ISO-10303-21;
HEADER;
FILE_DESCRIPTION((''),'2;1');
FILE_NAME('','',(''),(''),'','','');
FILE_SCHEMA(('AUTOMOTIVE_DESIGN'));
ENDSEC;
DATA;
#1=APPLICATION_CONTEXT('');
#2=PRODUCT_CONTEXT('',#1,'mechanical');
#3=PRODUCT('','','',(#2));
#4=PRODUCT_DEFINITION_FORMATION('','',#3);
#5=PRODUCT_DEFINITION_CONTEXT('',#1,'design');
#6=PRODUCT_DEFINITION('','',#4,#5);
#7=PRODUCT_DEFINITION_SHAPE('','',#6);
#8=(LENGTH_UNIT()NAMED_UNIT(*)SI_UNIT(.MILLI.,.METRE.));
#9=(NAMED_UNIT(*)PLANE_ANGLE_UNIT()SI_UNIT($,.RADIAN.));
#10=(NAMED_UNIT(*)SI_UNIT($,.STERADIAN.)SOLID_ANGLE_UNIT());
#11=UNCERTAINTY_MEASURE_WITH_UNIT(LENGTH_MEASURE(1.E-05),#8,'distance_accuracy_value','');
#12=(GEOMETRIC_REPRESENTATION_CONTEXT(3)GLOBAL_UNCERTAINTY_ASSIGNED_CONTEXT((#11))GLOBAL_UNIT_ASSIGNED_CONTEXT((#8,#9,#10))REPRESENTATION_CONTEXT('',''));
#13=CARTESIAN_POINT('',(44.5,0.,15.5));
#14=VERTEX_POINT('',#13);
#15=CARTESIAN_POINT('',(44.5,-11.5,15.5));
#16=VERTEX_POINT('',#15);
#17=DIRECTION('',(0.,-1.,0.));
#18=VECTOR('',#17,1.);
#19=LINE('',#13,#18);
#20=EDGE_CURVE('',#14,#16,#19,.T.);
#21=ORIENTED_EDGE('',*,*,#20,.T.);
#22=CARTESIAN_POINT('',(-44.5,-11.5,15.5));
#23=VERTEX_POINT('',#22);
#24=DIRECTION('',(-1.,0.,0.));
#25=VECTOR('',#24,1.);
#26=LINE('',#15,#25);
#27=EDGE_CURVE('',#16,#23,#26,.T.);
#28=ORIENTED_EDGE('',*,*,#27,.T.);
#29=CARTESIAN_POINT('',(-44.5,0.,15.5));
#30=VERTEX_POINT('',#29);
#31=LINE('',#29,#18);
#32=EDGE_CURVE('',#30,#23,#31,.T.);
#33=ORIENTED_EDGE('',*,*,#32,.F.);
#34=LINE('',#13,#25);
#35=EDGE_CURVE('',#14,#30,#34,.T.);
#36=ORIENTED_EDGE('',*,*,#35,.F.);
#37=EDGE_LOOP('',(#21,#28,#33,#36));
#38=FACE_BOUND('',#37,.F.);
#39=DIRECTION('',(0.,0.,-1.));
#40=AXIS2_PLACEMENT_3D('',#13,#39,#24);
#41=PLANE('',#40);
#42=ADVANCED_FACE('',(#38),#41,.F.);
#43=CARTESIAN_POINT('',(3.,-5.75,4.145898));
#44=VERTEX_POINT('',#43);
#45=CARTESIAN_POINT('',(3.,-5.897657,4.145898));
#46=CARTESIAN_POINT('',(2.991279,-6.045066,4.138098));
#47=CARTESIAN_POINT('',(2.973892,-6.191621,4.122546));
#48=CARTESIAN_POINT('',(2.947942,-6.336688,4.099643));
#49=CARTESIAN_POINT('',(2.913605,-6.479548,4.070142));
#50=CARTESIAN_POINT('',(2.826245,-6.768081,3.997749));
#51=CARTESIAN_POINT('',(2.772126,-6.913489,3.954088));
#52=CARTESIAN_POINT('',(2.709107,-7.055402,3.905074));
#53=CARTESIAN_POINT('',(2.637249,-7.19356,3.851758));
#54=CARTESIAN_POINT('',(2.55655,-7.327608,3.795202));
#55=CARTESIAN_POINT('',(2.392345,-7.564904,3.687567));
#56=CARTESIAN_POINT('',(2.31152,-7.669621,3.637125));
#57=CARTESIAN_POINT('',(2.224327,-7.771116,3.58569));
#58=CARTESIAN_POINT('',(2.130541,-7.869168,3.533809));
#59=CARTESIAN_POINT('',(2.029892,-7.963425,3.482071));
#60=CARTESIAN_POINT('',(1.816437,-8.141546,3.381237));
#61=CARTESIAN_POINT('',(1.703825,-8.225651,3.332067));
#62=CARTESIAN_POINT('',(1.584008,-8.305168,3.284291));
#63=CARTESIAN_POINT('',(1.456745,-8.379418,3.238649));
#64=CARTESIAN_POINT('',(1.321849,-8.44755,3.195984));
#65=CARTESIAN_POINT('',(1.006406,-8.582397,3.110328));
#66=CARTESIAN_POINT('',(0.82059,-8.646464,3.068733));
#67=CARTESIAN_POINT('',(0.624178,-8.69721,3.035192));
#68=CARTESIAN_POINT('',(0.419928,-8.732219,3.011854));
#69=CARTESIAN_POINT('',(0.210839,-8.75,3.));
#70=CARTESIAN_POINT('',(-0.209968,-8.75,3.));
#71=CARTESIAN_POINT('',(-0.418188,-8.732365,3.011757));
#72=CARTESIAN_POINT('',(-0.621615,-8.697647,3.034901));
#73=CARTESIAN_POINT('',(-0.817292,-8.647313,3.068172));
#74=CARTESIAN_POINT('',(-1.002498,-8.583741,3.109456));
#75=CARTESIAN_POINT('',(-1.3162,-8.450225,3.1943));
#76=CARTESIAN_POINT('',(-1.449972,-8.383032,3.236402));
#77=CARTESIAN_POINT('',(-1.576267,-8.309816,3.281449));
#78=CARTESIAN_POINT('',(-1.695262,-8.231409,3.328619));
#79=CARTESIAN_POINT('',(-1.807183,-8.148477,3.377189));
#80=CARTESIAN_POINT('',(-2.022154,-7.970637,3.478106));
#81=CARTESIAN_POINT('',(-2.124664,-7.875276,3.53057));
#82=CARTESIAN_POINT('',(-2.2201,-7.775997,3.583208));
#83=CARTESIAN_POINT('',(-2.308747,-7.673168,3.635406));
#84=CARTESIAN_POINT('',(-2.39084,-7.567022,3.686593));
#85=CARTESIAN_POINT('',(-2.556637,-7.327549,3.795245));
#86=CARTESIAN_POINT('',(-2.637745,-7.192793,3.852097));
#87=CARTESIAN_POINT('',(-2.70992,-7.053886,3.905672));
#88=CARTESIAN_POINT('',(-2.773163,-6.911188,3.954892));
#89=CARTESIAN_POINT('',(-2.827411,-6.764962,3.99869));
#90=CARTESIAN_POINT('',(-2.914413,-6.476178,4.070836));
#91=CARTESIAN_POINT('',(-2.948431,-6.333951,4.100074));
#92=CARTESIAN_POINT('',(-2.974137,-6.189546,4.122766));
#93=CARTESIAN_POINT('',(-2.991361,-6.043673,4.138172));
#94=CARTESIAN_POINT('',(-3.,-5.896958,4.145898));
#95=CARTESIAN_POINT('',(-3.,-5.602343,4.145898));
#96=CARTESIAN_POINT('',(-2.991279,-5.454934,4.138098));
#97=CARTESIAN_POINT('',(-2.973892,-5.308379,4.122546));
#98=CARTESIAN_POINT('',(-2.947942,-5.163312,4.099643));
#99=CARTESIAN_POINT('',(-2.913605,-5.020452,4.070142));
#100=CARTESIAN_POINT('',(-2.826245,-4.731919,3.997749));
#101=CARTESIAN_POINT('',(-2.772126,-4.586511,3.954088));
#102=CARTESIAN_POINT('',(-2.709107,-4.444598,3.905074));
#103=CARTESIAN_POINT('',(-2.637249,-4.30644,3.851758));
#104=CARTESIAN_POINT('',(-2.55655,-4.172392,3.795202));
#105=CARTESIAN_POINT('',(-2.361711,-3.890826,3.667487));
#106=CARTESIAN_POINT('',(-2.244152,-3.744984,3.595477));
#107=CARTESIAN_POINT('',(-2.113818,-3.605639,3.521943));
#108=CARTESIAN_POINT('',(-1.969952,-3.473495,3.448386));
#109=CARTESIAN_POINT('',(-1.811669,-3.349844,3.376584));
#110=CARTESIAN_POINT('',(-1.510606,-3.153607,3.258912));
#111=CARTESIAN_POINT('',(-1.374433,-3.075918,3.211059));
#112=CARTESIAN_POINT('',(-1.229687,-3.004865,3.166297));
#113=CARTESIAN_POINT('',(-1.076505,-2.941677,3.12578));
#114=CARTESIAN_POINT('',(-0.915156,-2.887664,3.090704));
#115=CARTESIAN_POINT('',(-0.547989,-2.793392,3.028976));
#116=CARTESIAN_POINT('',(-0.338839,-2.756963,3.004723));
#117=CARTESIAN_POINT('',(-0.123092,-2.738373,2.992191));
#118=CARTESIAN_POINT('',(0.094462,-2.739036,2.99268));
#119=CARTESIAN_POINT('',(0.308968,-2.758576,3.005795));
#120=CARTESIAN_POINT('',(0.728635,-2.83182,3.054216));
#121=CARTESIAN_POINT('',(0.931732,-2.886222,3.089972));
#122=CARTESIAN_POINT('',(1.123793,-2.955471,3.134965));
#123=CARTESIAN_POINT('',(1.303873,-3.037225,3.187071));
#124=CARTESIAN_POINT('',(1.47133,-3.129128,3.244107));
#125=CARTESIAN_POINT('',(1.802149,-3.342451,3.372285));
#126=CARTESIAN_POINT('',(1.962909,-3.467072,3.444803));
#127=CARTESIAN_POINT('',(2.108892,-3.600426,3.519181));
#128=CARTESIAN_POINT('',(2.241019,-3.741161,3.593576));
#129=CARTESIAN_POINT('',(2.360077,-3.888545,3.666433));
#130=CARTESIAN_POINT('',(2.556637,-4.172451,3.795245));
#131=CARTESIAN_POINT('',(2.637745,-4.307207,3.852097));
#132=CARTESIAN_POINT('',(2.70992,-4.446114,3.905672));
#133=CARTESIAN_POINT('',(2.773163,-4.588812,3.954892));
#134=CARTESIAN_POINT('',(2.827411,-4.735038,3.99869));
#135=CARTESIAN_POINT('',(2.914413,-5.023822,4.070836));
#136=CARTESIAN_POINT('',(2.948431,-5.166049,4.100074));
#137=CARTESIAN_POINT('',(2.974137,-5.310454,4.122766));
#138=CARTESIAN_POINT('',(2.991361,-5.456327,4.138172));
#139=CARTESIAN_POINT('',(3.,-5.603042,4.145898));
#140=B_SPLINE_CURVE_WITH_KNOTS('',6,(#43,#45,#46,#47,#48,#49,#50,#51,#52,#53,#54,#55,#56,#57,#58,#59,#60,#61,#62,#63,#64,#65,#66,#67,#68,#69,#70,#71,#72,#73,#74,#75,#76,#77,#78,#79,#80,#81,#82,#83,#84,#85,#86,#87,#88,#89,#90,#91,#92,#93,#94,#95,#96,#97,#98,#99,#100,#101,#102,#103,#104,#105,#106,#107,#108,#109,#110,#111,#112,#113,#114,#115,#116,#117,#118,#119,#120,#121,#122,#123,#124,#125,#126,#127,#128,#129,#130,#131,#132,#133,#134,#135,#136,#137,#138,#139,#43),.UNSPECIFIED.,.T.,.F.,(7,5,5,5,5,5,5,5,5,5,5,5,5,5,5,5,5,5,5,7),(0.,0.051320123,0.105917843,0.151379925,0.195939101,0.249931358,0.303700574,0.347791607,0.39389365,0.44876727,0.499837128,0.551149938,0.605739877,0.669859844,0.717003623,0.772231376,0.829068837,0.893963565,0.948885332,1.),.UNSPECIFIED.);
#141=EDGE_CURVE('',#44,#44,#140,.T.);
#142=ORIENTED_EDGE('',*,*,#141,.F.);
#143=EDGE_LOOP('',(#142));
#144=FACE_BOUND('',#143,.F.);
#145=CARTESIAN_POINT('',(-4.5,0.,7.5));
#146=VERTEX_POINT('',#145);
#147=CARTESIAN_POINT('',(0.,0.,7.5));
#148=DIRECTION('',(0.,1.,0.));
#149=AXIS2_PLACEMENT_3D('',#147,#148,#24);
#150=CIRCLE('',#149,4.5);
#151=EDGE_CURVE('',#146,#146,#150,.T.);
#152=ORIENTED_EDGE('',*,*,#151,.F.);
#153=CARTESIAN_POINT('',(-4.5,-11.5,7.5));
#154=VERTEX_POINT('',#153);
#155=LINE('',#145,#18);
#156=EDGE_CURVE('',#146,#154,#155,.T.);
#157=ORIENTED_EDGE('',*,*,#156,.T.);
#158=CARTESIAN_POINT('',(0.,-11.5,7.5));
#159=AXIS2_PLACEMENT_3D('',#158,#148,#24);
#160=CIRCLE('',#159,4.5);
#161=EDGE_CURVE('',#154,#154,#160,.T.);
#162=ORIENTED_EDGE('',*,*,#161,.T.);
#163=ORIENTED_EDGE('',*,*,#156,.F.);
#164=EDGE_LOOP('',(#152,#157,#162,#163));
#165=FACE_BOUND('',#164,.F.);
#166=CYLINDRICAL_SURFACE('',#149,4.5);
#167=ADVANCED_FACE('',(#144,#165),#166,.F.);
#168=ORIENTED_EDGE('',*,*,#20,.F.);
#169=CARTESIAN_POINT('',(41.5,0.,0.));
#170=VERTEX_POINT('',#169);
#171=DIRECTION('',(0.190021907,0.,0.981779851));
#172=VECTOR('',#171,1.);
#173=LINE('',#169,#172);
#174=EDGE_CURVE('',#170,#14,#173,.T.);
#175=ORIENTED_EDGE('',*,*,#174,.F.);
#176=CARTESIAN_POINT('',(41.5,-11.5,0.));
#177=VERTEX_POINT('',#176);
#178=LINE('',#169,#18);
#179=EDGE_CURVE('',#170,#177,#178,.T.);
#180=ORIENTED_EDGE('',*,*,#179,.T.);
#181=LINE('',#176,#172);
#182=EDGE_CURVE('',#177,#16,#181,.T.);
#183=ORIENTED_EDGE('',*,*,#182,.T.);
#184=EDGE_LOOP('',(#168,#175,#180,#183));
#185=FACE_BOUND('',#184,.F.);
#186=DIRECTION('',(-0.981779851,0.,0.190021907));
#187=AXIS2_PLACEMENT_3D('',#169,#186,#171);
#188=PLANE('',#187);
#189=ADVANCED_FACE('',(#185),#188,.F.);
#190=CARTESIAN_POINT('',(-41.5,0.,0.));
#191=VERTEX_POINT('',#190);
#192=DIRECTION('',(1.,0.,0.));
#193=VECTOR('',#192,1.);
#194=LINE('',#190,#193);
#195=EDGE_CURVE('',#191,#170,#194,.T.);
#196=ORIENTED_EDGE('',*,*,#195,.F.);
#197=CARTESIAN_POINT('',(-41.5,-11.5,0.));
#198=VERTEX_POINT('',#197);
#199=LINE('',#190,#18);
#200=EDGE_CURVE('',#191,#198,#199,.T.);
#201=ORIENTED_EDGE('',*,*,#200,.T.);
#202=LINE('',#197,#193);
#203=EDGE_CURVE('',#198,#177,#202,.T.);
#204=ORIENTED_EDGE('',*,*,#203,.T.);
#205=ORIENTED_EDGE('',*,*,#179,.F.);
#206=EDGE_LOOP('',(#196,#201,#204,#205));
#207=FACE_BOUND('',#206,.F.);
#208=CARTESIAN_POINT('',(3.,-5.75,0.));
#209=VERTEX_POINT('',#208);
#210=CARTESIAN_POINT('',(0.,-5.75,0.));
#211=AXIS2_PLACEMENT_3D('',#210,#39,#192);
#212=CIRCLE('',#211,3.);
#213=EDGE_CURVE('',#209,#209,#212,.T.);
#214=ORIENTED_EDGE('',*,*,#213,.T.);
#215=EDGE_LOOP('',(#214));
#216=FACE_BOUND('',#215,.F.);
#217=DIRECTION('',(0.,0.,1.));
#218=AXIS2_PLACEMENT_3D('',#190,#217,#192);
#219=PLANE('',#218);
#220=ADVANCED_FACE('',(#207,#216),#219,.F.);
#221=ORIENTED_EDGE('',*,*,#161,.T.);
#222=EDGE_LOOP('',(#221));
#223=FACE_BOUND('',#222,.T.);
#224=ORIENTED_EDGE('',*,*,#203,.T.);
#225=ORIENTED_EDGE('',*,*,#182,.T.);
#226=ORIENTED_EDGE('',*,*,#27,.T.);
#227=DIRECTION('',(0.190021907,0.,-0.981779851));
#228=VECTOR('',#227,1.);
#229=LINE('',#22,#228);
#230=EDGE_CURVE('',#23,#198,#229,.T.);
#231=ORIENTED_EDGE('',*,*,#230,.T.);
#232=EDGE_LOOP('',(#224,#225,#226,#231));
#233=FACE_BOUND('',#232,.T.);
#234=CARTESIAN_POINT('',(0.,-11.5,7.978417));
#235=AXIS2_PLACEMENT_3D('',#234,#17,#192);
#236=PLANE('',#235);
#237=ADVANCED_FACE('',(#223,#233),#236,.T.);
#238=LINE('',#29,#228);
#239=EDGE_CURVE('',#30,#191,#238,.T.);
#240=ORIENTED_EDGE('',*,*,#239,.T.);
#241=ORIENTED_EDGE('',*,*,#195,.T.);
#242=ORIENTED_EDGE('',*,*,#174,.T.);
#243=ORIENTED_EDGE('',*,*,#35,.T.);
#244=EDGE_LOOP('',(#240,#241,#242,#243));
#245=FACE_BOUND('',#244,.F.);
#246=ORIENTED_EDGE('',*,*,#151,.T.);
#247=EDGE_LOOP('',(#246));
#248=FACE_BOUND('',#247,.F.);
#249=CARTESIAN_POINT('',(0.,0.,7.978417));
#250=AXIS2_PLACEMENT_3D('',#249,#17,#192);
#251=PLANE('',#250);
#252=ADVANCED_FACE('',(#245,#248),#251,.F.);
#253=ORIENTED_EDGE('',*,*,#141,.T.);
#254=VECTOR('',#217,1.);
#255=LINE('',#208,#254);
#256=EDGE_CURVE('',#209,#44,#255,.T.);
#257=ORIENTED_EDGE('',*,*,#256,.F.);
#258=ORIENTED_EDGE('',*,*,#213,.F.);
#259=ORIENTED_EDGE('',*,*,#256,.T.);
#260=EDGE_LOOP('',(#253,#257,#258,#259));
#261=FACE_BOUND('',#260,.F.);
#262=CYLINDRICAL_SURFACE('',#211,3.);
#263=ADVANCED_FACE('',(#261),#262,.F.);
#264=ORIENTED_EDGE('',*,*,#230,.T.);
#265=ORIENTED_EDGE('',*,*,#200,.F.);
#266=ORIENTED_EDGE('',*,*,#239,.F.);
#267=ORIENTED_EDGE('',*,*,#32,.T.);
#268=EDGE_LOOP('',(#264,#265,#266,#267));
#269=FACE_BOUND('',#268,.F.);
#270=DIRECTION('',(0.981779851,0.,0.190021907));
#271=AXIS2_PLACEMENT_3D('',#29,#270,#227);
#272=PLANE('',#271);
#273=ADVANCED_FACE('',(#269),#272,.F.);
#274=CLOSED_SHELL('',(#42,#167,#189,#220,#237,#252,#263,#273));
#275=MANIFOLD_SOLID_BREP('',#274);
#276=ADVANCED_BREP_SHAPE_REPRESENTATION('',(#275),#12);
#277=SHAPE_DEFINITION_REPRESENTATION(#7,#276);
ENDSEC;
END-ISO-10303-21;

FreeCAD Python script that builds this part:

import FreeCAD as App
import Part
import Sketcher
from FreeCAD import Vector
Q = App.Units.Quantity

doc = App.newDocument("Part")
body = doc.addObject("PartDesign::Body", "Body")

# Sketch on XZ plane
sketch1 = body.newObject("Sketcher::SketchObject", "Sketch")
sketch1.AttachmentSupport = (doc.getObject("XZ_Plane"), [""])
sketch1.MapMode = "FlatFace"
sketch1.addGeometry([
    Part.LineSegment(Vector(-44, 16, 0), Vector(-42, 0, 0)),
    Part.LineSegment(Vector(-42, 0, 0), Vector(42, 0, 0)),
    Part.LineSegment(Vector(42, 0, 0), Vector(44, 16, 0)),
    Part.LineSegment(Vector(44, 16, 0), Vector(-44, 16, 0)),
], False)
sketch1.addConstraint([
    Sketcher.Constraint("Coincident", 0, 2, 1, 1),
    Sketcher.Constraint("Coincident", 1, 2, 2, 1),
    Sketcher.Constraint("Coincident", 2, 2, 3, 1),
    Sketcher.Constraint("Coincident", 3, 2, 0, 1),
    Sketcher.Constraint("Horizontal", 1),
    Sketcher.Constraint("Horizontal", 3),
    Sketcher.Constraint("Symmetric", 0, 2, 1, 2, -1, 1),
    Sketcher.Constraint("Equal", 0, 2),
    Sketcher.Constraint("DistanceX", 1, 1, 1, 2, Q("83 mm")),
    Sketcher.Constraint("DistanceX", 3, 2, 3, 1, Q("89 mm")),
    Sketcher.Constraint("DistanceY", -1, 1, 2, 2, Q("15.5 mm")),
])
pad1 = body.newObject("PartDesign::Pad", "Pad")
pad1.Profile = sketch1
pad1.Length = 11.5

# Sketch on XZ plane
sketch2 = body.newObject("Sketcher::SketchObject", "Sketch001")
sketch2.AttachmentSupport = (doc.getObject("XZ_Plane"), [""])
sketch2.MapMode = "FlatFace"
sketch2.addGeometry(Part.Circle(Vector(0, 7.5, 0), Vector(0, 0, 1), 4.5), False)
sketch2.addConstraint([
    Sketcher.Constraint("PointOnObject", 0, 3, -2),
    Sketcher.Constraint("Diameter", 0, Q("9 mm")),
    Sketcher.Constraint("DistanceY", -1, 1, 0, 3, Q("7.5 mm")),
])
pocket1 = body.newObject("PartDesign::Pocket", "Pocket")
pocket1.Profile = sketch2
pocket1.Type = "ThroughAll"
pocket1.Reversed = True

# Sketch on XY plane
sketch3 = body.newObject("Sketcher::SketchObject", "Sketch002")
sketch3.AttachmentSupport = (doc.getObject("XY_Plane"), [""])
sketch3.MapMode = "FlatFace"
sketch3.addGeometry(Part.Circle(Vector(0, -5.8, 0), Vector(0, 0, 1), 3), False)
sketch3.addConstraint([
    Sketcher.Constraint("PointOnObject", 0, 3, -2),
    Sketcher.Constraint("Diameter", 0, Q("6 mm")),
    Sketcher.Constraint("DistanceY", 0, 3, -1, 1, Q("5.75 mm")),
])
pocket2 = body.newObject("PartDesign::Pocket", "Pocket001")
pocket2.Profile = sketch3
pocket2.Length = 10
pocket2.Reversed = True

doc.recompute()
